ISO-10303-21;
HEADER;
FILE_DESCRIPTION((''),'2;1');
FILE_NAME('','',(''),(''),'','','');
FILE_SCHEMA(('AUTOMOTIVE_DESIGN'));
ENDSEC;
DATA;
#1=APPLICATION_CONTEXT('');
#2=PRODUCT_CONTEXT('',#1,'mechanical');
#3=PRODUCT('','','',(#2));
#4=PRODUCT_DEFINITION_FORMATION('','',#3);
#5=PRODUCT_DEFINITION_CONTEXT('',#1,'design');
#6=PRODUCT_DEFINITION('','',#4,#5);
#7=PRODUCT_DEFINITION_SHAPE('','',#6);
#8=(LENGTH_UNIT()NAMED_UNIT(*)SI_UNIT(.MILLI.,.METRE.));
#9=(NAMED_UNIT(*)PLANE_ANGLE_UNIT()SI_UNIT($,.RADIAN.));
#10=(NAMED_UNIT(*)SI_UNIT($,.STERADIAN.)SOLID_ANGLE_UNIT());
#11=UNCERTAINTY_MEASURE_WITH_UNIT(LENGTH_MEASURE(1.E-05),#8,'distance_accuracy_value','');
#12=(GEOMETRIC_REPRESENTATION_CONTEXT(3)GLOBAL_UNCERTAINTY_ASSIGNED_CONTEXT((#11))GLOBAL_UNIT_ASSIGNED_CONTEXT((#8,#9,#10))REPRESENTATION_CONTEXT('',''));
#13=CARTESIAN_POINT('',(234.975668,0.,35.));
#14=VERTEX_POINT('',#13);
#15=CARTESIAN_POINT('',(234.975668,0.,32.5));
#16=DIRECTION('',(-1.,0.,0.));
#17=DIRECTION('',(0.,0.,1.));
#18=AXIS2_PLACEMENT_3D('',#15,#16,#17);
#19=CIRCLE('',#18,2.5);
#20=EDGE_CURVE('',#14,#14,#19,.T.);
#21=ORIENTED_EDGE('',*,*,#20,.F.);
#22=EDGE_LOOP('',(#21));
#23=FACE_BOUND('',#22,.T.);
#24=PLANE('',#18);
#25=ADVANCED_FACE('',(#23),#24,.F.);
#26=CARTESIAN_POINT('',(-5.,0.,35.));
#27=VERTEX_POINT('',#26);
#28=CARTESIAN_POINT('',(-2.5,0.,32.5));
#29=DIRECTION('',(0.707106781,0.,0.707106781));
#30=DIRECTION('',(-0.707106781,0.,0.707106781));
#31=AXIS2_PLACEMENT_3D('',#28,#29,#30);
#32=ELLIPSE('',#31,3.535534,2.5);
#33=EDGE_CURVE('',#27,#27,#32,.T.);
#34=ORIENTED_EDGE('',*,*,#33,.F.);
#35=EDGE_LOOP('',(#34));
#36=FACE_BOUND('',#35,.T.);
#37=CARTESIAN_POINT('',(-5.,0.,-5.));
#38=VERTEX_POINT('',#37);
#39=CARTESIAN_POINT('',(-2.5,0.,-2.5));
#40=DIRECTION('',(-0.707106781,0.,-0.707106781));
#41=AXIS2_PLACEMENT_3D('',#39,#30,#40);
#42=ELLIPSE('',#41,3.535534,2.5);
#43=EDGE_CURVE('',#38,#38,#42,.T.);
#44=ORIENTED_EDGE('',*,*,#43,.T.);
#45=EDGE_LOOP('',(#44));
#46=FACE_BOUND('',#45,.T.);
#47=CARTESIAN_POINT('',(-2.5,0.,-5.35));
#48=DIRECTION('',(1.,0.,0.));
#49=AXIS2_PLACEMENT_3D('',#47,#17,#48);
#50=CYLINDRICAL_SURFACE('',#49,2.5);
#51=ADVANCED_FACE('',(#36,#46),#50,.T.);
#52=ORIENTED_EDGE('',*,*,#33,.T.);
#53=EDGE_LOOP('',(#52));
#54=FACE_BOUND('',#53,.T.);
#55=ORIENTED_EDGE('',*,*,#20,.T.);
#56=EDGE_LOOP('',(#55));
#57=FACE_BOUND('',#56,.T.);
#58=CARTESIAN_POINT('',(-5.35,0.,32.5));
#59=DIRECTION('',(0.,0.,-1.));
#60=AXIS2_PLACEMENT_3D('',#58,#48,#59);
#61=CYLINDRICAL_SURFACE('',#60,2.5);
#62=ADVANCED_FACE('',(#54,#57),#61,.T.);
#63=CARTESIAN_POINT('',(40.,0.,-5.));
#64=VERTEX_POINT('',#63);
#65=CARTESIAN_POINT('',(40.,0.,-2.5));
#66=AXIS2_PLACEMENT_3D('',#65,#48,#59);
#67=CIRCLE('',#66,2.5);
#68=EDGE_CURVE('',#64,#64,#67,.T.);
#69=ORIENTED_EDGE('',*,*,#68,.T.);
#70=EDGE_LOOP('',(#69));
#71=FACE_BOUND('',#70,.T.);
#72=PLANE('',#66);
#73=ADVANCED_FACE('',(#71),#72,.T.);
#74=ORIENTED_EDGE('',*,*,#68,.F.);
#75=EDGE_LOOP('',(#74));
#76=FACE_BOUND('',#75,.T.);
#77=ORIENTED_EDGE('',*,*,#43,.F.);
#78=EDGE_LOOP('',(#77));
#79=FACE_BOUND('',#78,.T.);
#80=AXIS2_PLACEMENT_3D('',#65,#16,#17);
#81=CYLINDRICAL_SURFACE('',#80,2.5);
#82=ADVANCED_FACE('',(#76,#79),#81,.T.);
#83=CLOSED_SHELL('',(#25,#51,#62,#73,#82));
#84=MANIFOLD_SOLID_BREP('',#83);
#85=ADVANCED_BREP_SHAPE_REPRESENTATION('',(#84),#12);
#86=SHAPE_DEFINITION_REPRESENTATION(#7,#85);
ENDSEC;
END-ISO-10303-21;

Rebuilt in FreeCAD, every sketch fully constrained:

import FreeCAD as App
import Part
import Sketcher

V = App.Vector
Q = App.Units.Quantity

doc = App.newDocument("Part")
body = doc.addObject("PartDesign::Body", "Body")

sketch1 = body.newObject("Sketcher::SketchObject", "Sketch")
sketch1.AttachmentSupport = (doc.getObject("YZ_Plane"), [""])
sketch1.MapMode = "FlatFace"
sketch1.AttachmentOffset = App.Placement(V(0, 0, 40), App.Rotation())
sketch1.addGeometry(Part.Circle(V(0, -2.5, 0), V(0, 0, 1), 2.5), False)
sketch1.addConstraint(Sketcher.Constraint("PointOnObject", 0, 3, -2))
sketch1.addConstraint(Sketcher.Constraint("Diameter", 0, Q("5 mm")))
sketch1.addConstraint(Sketcher.Constraint("DistanceY", 0, 3, -1, 1, Q("2.5 mm")))

sketch2 = body.newObject("Sketcher::SketchObject", "Sketch001")
sketch2.AttachmentSupport = (doc.getObject("XZ_Plane"), [""])
sketch2.MapMode = "FlatFace"
sketch2.addGeometry(Part.LineSegment(V(40, -2.5, 0), V(-2.5, -2.5, 0)), False)
sketch2.addGeometry(Part.LineSegment(V(-2.5, -2.5, 0), V(-2.5, 32.5, 0)), False)
sketch2.addGeometry(Part.LineSegment(V(-2.5, 32.5, 0), V(234.975668, 32.5, 0)), False)
sketch2.addConstraint(Sketcher.Constraint("Coincident", 0, 2, 1, 1))
sketch2.addConstraint(Sketcher.Constraint("Coincident", 1, 2, 2, 1))
sketch2.addConstraint(Sketcher.Constraint("Horizontal", 0))
sketch2.addConstraint(Sketcher.Constraint("Vertical", 1))
sketch2.addConstraint(Sketcher.Constraint("Horizontal", 2))
sketch2.addConstraint(Sketcher.Constraint("DistanceY", 1, 1, 1, 2, Q("35 mm")))
sketch2.addConstraint(Sketcher.Constraint("DistanceX", 0, 2, 0, 1, Q("42.5 mm")))
sketch2.addConstraint(Sketcher.Constraint("DistanceX", -1, 1, 0, 1, Q("40 mm")))
sketch2.addConstraint(Sketcher.Constraint("DistanceY", 0, 1, -1, 1, Q("2.5 mm")))
sketch2.addConstraint(Sketcher.Constraint("DistanceX", 2, 1, 2, 2, Q("237.475668 mm")))
doc.recompute()

additivepipe = body.newObject("PartDesign::AdditivePipe", "AdditivePipe")
additivepipe.Profile = sketch1
additivepipe.Spine = (sketch2, ["Edge1", "Edge2", "Edge3"])
additivepipe.Transition = "Right corner"

doc.recompute()
